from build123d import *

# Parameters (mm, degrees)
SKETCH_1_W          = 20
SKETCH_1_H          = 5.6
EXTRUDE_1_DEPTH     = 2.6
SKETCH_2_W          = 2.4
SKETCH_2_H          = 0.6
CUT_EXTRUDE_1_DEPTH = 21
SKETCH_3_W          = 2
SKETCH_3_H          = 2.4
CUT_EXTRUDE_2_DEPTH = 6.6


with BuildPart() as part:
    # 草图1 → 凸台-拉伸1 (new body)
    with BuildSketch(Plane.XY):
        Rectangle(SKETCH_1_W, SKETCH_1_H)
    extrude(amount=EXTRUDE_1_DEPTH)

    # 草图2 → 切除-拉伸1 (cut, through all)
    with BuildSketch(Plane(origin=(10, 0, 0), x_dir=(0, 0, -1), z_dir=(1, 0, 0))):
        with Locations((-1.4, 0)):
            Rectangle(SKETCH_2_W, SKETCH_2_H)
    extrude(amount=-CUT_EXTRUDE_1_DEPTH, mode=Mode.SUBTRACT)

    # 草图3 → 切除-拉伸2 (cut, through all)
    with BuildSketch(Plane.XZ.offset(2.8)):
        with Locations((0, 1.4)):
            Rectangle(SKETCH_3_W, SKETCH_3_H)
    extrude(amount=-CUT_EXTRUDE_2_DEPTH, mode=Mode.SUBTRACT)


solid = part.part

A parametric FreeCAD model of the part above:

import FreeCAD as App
import Part
import Sketcher

V = App.Vector
Q = App.Units.Quantity

doc = App.newDocument("Part")
body = doc.addObject("PartDesign::Body", "Body")

sketch1 = body.newObject("Sketcher::SketchObject", "Sketch")
sketch1.AttachmentSupport = (doc.getObject("XY_Plane"), [""])
sketch1.MapMode = "FlatFace"
sketch1.addGeometry([
    Part.LineSegment(V(-10, 3, 0), V(-10, -3, 0)),
    Part.LineSegment(V(-10, -3, 0), V(10, -3, 0)),
    Part.LineSegment(V(10, -3, 0), V(10, 3, 0)),
    Part.LineSegment(V(10, 3, 0), V(-10, 3, 0)),
], False)
sketch1.addConstraint([
    Sketcher.Constraint("Coincident", 0, 2, 1, 1),
    Sketcher.Constraint("Coincident", 1, 2, 2, 1),
    Sketcher.Constraint("Coincident", 2, 2, 3, 1),
    Sketcher.Constraint("Coincident", 3, 2, 0, 1),
    Sketcher.Constraint("Vertical", 0),
    Sketcher.Constraint("Horizontal", 1),
    Sketcher.Constraint("Vertical", 2),
    Sketcher.Constraint("Horizontal", 3),
    Sketcher.Constraint("Symmetric", 0, 2, 2, 2, -1, 1),
    Sketcher.Constraint("DistanceX", 1, 1, 1, 2, Q("20 mm")),
    Sketcher.Constraint("DistanceY", 0, 2, 0, 1, Q("5.6 mm")),
])
pad1 = body.newObject("PartDesign::Pad", "Pad")
pad1.Profile = sketch1
pad1.Length = 2.6

sketch2 = body.newObject("Sketcher::SketchObject", "Sketch001")
sketch2.AttachmentSupport = (doc.getObject("YZ_Plane"), [""])
sketch2.MapMode = "FlatFace"
sketch2.AttachmentOffset = App.Placement(V(0, 0, 10), App.Rotation())
sketch2.addGeometry([
    Part.LineSegment(V(0.3, 2.6, 0), V(-0.3, 2.6, 0)),
    Part.LineSegment(V(-0.3, 2.6, 0), V(-0.3, 0.2, 0)),
    Part.LineSegment(V(-0.3, 0.2, 0), V(0.3, 0.2, 0)),
    Part.LineSegment(V(0.3, 0.2, 0), V(0.3, 2.6, 0)),
], False)
sketch2.addConstraint([
    Sketcher.Constraint("Coincident", 0, 2, 1, 1),
    Sketcher.Constraint("Coincident", 1, 2, 2, 1),
    Sketcher.Constraint("Coincident", 2, 2, 3, 1),
    Sketcher.Constraint("Coincident", 3, 2, 0, 1),
    Sketcher.Constraint("Horizontal", 0),
    Sketcher.Constraint("Vertical", 1),
    Sketcher.Constraint("Horizontal", 2),
    Sketcher.Constraint("Vertical", 3),
    Sketcher.Constraint("DistanceX", 0, 2, 0, 1, Q("0.6 mm")),
    Sketcher.Constraint("DistanceY", 1, 2, 1, 1, Q("2.4 mm")),
    Sketcher.Constraint("DistanceX", 0, 2, -1, 1, Q("0.3 mm")),
    Sketcher.Constraint("DistanceY", -1, 1, 0, 2, Q("2.6 mm")),
])
pocket1 = body.newObject("PartDesign::Pocket", "Pocket")
pocket1.Profile = sketch2
pocket1.Type = "ThroughAll"

sketch3 = body.newObject("Sketcher::SketchObject", "Sketch002")
sketch3.AttachmentSupport = (doc.getObject("XZ_Plane"), [""])
sketch3.MapMode = "FlatFace"
sketch3.AttachmentOffset = App.Placement(V(0, 0, 2.8), App.Rotation())
sketch3.addGeometry([
    Part.LineSegment(V(-1, 2.6, 0), V(-1, 0.2, 0)),
    Part.LineSegment(V(-1, 0.2, 0), V(1, 0.2, 0)),
    Part.LineSegment(V(1, 0.2, 0), V(1, 2.6, 0)),
    Part.LineSegment(V(1, 2.6, 0), V(-1, 2.6, 0)),
], False)
sketch3.addConstraint([
    Sketcher.Constraint("Coincident", 0, 2, 1, 1),
    Sketcher.Constraint("Coincident", 1, 2, 2, 1),
    Sketcher.Constraint("Coincident", 2, 2, 3, 1),
    Sketcher.Constraint("Coincident", 3, 2, 0, 1),
    Sketcher.Constraint("Vertical", 0),
    Sketcher.Constraint("Horizontal", 1),
    Sketcher.Constraint("Vertical", 2),
    Sketcher.Constraint("Horizontal", 3),
    Sketcher.Constraint("DistanceX", 1, 1, 1, 2, Q("2 mm")),
    Sketcher.Constraint("DistanceY", 0, 2, 0, 1, Q("2.4 mm")),
    Sketcher.Constraint("DistanceX", 0, 2, -1, 1, Q("1 mm")),
    Sketcher.Constraint("DistanceY", -1, 1, 0, 2, Q("0.2 mm")),
])
pocket2 = body.newObject("PartDesign::Pocket", "Pocket001")
pocket2.Profile = sketch3
pocket2.Type = "ThroughAll"

doc.recompute()
